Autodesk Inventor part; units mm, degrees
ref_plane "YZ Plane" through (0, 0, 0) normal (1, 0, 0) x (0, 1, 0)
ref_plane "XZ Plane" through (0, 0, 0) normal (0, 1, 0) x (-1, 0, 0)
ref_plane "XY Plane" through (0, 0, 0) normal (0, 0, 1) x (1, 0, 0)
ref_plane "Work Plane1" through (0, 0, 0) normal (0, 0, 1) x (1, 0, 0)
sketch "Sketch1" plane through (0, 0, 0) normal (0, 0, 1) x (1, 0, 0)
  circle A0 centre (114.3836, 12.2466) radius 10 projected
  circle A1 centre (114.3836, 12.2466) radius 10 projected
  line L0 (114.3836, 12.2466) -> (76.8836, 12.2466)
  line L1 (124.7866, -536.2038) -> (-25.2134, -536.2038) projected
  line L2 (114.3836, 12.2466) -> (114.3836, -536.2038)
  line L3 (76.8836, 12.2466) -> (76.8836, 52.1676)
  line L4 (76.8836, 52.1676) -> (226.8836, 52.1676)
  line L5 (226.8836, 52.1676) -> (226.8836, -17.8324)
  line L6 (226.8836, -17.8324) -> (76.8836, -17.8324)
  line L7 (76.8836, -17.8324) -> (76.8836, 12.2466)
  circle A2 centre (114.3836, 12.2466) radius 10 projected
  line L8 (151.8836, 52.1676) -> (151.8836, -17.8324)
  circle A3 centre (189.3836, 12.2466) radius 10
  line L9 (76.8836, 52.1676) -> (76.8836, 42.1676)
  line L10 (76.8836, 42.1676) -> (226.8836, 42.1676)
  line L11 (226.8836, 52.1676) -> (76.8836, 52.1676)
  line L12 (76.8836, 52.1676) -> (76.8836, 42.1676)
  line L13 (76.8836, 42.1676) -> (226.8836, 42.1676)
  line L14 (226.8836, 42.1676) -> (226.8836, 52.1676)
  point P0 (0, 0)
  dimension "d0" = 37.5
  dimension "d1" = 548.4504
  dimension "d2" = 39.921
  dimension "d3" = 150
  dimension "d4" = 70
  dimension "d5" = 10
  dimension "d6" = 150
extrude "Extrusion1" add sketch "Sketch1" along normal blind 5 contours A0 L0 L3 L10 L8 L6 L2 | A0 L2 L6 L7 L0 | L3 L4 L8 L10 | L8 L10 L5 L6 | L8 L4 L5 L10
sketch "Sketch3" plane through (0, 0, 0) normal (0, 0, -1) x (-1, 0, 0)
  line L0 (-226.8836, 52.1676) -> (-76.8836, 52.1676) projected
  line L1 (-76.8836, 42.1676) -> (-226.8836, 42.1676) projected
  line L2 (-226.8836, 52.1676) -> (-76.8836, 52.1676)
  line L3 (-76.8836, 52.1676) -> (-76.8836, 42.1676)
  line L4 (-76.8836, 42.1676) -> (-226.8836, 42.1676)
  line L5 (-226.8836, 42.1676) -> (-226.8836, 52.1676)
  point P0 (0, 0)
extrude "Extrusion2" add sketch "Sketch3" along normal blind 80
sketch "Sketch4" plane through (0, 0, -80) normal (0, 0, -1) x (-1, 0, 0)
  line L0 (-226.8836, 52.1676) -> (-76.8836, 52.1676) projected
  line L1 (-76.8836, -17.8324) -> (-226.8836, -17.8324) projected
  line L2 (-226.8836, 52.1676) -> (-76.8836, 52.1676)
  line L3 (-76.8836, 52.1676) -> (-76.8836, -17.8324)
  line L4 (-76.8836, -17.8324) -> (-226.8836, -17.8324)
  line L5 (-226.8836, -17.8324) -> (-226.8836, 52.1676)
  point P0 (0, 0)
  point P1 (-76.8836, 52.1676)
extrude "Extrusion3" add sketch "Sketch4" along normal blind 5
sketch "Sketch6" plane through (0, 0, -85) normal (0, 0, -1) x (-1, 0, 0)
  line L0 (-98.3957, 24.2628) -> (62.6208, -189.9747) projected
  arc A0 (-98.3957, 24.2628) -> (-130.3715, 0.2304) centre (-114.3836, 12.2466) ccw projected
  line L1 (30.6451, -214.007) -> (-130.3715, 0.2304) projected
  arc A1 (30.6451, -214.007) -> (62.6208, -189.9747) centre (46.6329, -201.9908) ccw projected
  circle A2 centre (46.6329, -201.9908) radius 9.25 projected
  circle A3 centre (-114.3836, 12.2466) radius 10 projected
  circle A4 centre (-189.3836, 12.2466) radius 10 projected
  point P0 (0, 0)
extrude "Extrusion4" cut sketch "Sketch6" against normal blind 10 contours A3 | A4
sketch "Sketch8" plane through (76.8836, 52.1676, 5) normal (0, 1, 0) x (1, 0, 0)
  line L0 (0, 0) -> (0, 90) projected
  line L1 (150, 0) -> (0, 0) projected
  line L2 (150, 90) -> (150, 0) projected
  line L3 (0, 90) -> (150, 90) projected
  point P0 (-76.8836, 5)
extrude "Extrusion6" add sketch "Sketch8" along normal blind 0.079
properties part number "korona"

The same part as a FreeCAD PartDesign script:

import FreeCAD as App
import Part
import Sketcher
Q = App.Units.Quantity


def add_polygon(sketch, points):
    """Adds a closed chain of lines whose ends are joined by coincident constraints."""
    first, n = sketch.GeometryCount, len(points)
    for a, b in zip(points, points[1:] + points[:1]):
        sketch.addGeometry(Part.LineSegment(App.Vector(*a, 0), App.Vector(*b, 0)), False)
    for i in range(n):
        sketch.addConstraint(Sketcher.Constraint("Coincident", first + i, 2, first + (i + 1) % n, 1))

doc = App.newDocument("Part")
body = doc.addObject("PartDesign::Body", "Body")

sketch1 = doc.addObject("Sketcher::SketchObject", "Sketch")
body.addObject(sketch1)
sketch1.AttachmentSupport = (doc.XY_Plane, [""])
sketch1.MapMode = "FlatFace"
add_polygon(sketch1, [(76.8836, -17.8324), (226.8836, -17.8324), (226.8836, 52.1676), (76.8836, 52.1676)])
sketch1.addGeometry(Part.Circle(App.Vector(114.3836, 12.2466, 0), App.Vector(0, 0, 1), 10), False)
sketch1.addGeometry(Part.Circle(App.Vector(189.3836, 12.2466, 0), App.Vector(0, 0, 1), 10), False)
sketch1.addConstraint([
    Sketcher.Constraint("Horizontal", 0),
    Sketcher.Constraint("Vertical", 1),
    Sketcher.Constraint("Horizontal", 2),
    Sketcher.Constraint("Vertical", 3),
    Sketcher.Constraint("Equal", 4, 5),
    Sketcher.Constraint("Horizontal", 4, 3, 5, 3),
    Sketcher.Constraint("Diameter", 4, Q("20 mm")),
    Sketcher.Constraint("DistanceX", 0, 1, 0, 2, Q("150 mm")),
    Sketcher.Constraint("DistanceY", 1, 1, 1, 2, Q("70 mm")),
    Sketcher.Constraint("DistanceX", 5, 3, 0, 2, Q("37.5 mm")),
    Sketcher.Constraint("DistanceX", 2, 2, 4, 3, Q("37.5 mm")),
    Sketcher.Constraint("DistanceY", 5, 3, 1, 2, Q("39.921 mm")),
    Sketcher.Constraint("DistanceX", -1, 1, 4, 3, Q("114.3836 mm")),
    Sketcher.Constraint("DistanceY", -1, 1, 4, 3, Q("12.2466 mm")),
])
pad1 = doc.addObject("PartDesign::Pad", "Pad")
body.addObject(pad1)
pad1.Profile = sketch1
pad1.Length = 5

sketch2 = doc.addObject("Sketcher::SketchObject", "Sketch001")
body.addObject(sketch2)
sketch2.AttachmentSupport = (doc.XY_Plane, [""])
sketch2.MapMode = "FlatFace"
add_polygon(sketch2, [(76.8836, 52.1676), (226.8836, 52.1676), (226.8836, 42.1676), (76.8836, 42.1676)])
sketch2.addConstraint([
    Sketcher.Constraint("Horizontal", 0),
    Sketcher.Constraint("Vertical", 1),
    Sketcher.Constraint("Horizontal", 2),
    Sketcher.Constraint("Vertical", 3),
    Sketcher.Constraint("DistanceX", 0, 1, 0, 2, Q("150 mm")),
    Sketcher.Constraint("DistanceY", 1, 2, 1, 1, Q("10 mm")),
    Sketcher.Constraint("DistanceX", -1, 1, 0, 2, Q("226.8836 mm")),
    Sketcher.Constraint("DistanceY", -1, 1, 0, 2, Q("52.1676 mm")),
])
pad2 = doc.addObject("PartDesign::Pad", "Pad001")
body.addObject(pad2)
pad2.Profile = sketch2
pad2.Length = 80
pad2.Reversed = True

sketch3 = doc.addObject("Sketcher::SketchObject", "Sketch002")
body.addObject(sketch3)
sketch3.AttachmentSupport = (doc.XY_Plane, [""])
sketch3.MapMode = "FlatFace"
sketch3.AttachmentOffset = App.Placement(App.Vector(0, 0, -80), App.Rotation())
add_polygon(sketch3, [(76.8836, 52.1676), (226.8836, 52.1676), (226.8836, -17.8324), (76.8836, -17.8324)])
sketch3.addConstraint([
    Sketcher.Constraint("Horizontal", 0),
    Sketcher.Constraint("Vertical", 1),
    Sketcher.Constraint("Horizontal", 2),
    Sketcher.Constraint("Vertical", 3),
    Sketcher.Constraint("DistanceX", 0, 1, 0, 2, Q("150 mm")),
    Sketcher.Constraint("DistanceY", 1, 2, 1, 1, Q("70 mm")),
    Sketcher.Constraint("DistanceX", -1, 1, 0, 2, Q("226.8836 mm")),
    Sketcher.Constraint("DistanceY", -1, 1, 0, 2, Q("52.1676 mm")),
])
pad3 = doc.addObject("PartDesign::Pad", "Pad002")
body.addObject(pad3)
pad3.Profile = sketch3
pad3.Length = 5
pad3.Reversed = True

sketch4 = doc.addObject("Sketcher::SketchObject", "Sketch003")
body.addObject(sketch4)
sketch4.AttachmentSupport = (doc.XY_Plane, [""])
sketch4.MapMode = "FlatFace"
sketch4.AttachmentOffset = App.Placement(App.Vector(0, 0, -85), App.Rotation())
sketch4.addGeometry([
    Part.Circle(App.Vector(114.3836, 12.2466, 0), App.Vector(0, 0, 1), 10),
    Part.Circle(App.Vector(189.3836, 12.2466, 0), App.Vector(0, 0, 1), 10),
], False)
sketch4.addConstraint([
    Sketcher.Constraint("Equal", 0, 1),
    Sketcher.Constraint("Horizontal", 0, 3, 1, 3),
    Sketcher.Constraint("Diameter", 0, Q("20 mm")),
    Sketcher.Constraint("DistanceX", 0, 3, 1, 3, Q("75 mm")),
    Sketcher.Constraint("DistanceX", -1, 1, 0, 3, Q("114.3836 mm")),
    Sketcher.Constraint("DistanceY", -1, 1, 0, 3, Q("12.2466 mm")),
])
pocket1 = doc.addObject("PartDesign::Pocket", "Pocket")
body.addObject(pocket1)
pocket1.Profile = sketch4
pocket1.Length = 10
pocket1.Reversed = True

sketch5 = doc.addObject("Sketcher::SketchObject", "Sketch004")
body.addObject(sketch5)
sketch5.AttachmentSupport = (doc.XZ_Plane, [""])
sketch5.MapMode = "FlatFace"
sketch5.AttachmentOffset = App.Placement(App.Vector(0, 0, -52.1676), App.Rotation())
add_polygon(sketch5, [(76.8836, -85), (76.8836, 5), (226.8836, 5), (226.8836, -85)])
sketch5.addConstraint([
    Sketcher.Constraint("Vertical", 0),
    Sketcher.Constraint("Horizontal", 1),
    Sketcher.Constraint("Vertical", 2),
    Sketcher.Constraint("Horizontal", 3),
    Sketcher.Constraint("DistanceX", 1, 1, 1, 2, Q("150 mm")),
    Sketcher.Constraint("DistanceY", 0, 1, 0, 2, Q("90 mm")),
    Sketcher.Constraint("DistanceY", -1, 1, 0, 2, Q("5 mm")),
    Sketcher.Constraint("DistanceX", -1, 1, 0, 2, Q("76.8836 mm")),
])
pad4 = doc.addObject("PartDesign::Pad", "Pad003")
body.addObject(pad4)
pad4.Profile = sketch5
pad4.Length = 0.079
pad4.Reversed = True

doc.recompute()
